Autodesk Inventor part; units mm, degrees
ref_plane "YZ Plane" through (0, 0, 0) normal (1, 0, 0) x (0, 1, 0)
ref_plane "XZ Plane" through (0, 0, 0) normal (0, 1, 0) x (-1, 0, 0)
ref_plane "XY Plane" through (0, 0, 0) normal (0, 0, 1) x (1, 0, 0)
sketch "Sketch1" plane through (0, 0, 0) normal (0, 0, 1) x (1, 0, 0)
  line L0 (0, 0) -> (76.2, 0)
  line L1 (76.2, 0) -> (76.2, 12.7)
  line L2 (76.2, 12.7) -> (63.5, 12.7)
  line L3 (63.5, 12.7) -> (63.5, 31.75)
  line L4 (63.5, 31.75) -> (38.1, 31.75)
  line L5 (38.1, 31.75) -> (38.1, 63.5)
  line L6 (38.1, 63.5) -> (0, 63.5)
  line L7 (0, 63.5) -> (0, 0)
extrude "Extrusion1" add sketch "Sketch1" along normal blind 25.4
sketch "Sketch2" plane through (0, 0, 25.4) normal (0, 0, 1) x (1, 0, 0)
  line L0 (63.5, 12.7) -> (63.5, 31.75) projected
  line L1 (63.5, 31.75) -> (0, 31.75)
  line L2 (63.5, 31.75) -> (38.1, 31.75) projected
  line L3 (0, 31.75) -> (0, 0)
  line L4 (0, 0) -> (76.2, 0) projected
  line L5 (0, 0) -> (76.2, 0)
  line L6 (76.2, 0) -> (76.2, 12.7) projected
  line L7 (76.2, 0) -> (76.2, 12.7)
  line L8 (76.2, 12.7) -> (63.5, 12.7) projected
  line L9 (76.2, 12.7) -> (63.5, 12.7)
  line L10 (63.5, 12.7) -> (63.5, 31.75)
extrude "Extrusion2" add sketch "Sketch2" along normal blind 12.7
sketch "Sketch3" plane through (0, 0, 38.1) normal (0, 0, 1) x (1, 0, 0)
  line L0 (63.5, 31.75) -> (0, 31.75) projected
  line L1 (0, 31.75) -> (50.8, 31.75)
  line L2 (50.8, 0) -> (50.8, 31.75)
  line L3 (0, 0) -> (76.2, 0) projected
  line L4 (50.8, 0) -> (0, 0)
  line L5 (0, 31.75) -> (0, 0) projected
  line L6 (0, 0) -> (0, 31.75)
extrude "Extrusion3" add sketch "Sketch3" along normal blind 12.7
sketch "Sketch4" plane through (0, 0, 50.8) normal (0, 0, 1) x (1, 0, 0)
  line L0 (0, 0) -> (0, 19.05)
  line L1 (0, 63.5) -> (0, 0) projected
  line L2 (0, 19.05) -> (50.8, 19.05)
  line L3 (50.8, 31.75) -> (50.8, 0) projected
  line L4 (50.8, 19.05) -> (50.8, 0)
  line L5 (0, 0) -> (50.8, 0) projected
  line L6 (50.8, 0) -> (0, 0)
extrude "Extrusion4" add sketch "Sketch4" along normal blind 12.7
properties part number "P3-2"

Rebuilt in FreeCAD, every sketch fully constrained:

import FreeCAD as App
import Part
import Sketcher
Q = App.Units.Quantity

doc = App.newDocument("Part")
body = doc.addObject("PartDesign::Body", "Body")

sketch1 = body.newObject("Sketcher::SketchObject", "Sketch")
sketch1.AttachmentSupport = (doc.getObject("XY_Plane"), [""])
sketch1.MapMode = "FlatFace"
sketch1.addGeometry([
    Part.LineSegment(App.Vector(0, 64, 0), App.Vector(0, 0, 0)),
    Part.LineSegment(App.Vector(0, 0, 0), App.Vector(76, 0, 0)),
    Part.LineSegment(App.Vector(76, 0, 0), App.Vector(76, 13, 0)),
    Part.LineSegment(App.Vector(76, 13, 0), App.Vector(64, 13, 0)),
    Part.LineSegment(App.Vector(64, 13, 0), App.Vector(64, 32, 0)),
    Part.LineSegment(App.Vector(64, 32, 0), App.Vector(38, 32, 0)),
    Part.LineSegment(App.Vector(38, 32, 0), App.Vector(38, 64, 0)),
    Part.LineSegment(App.Vector(38, 64, 0), App.Vector(0, 64, 0)),
], False)
sketch1.addConstraint([
    Sketcher.Constraint("Coincident", 0, 2, 1, 1),
    Sketcher.Constraint("Coincident", 1, 2, 2, 1),
    Sketcher.Constraint("Coincident", 2, 2, 3, 1),
    Sketcher.Constraint("Coincident", 3, 2, 4, 1),
    Sketcher.Constraint("Coincident", 4, 2, 5, 1),
    Sketcher.Constraint("Coincident", 5, 2, 6, 1),
    Sketcher.Constraint("Coincident", 6, 2, 7, 1),
    Sketcher.Constraint("Coincident", 7, 2, 0, 1),
    Sketcher.Constraint("Vertical", 0),
    Sketcher.Constraint("Horizontal", 1),
    Sketcher.Constraint("Vertical", 2),
    Sketcher.Constraint("Horizontal", 3),
    Sketcher.Constraint("Vertical", 4),
    Sketcher.Constraint("Horizontal", 5),
    Sketcher.Constraint("Vertical", 6),
    Sketcher.Constraint("Horizontal", 7),
    Sketcher.Constraint("Coincident", 0, 2, -1, 1),
    Sketcher.Constraint("Equal", 3, 2),
    Sketcher.Constraint("DistanceX", 1, 1, 1, 2, Q("3 in")),
    Sketcher.Constraint("DistanceX", 5, 2, 5, 1, Q("1 in")),
    Sketcher.Constraint("DistanceX", 3, 2, 3, 1, Q("0.5 in")),
    Sketcher.Constraint("DistanceY", 0, 2, 0, 1, Q("2.5 in")),
    Sketcher.Constraint("DistanceY", 4, 1, 4, 2, Q("0.75 in")),
])
pad1 = body.newObject("PartDesign::Pad", "Pad")
pad1.Profile = sketch1
pad1.Length = Q("1 in")

sketch2 = body.newObject("Sketcher::SketchObject", "Sketch001")
sketch2.AttachmentSupport = (doc.getObject("XY_Plane"), [""])
sketch2.MapMode = "FlatFace"
sketch2.AttachmentOffset = App.Placement(App.Vector(0, 0, 1 * 25.4), App.Rotation())
sketch2.addGeometry([
    Part.LineSegment(App.Vector(76, 13, 0), App.Vector(64, 13, 0)),
    Part.LineSegment(App.Vector(64, 13, 0), App.Vector(64, 32, 0)),
    Part.LineSegment(App.Vector(64, 32, 0), App.Vector(0, 32, 0)),
    Part.LineSegment(App.Vector(0, 32, 0), App.Vector(0, 0, 0)),
    Part.LineSegment(App.Vector(0, 0, 0), App.Vector(76, 0, 0)),
    Part.LineSegment(App.Vector(76, 0, 0), App.Vector(76, 13, 0)),
], False)
sketch2.addConstraint([
    Sketcher.Constraint("Coincident", 0, 2, 1, 1),
    Sketcher.Constraint("Coincident", 1, 2, 2, 1),
    Sketcher.Constraint("Coincident", 2, 2, 3, 1),
    Sketcher.Constraint("Coincident", 3, 2, 4, 1),
    Sketcher.Constraint("Coincident", 4, 2, 5, 1),
    Sketcher.Constraint("Coincident", 5, 2, 0, 1),
    Sketcher.Constraint("Horizontal", 0),
    Sketcher.Constraint("Vertical", 1),
    Sketcher.Constraint("Horizontal", 2),
    Sketcher.Constraint("Vertical", 3),
    Sketcher.Constraint("Horizontal", 4),
    Sketcher.Constraint("Vertical", 5),
    Sketcher.Constraint("Coincident", 3, 2, -1, 1),
    Sketcher.Constraint("Equal", 0, 5),
    Sketcher.Constraint("DistanceX", 4, 1, 4, 2, Q("3 in")),
    Sketcher.Constraint("DistanceX", 0, 2, 0, 1, Q("0.5 in")),
    Sketcher.Constraint("DistanceY", 1, 1, 1, 2, Q("0.75 in")),
])
pad2 = body.newObject("PartDesign::Pad", "Pad001")
pad2.Profile = sketch2
pad2.Length = Q("0.5 in")

sketch3 = body.newObject("Sketcher::SketchObject", "Sketch002")
sketch3.AttachmentSupport = (doc.getObject("XY_Plane"), [""])
sketch3.MapMode = "FlatFace"
sketch3.AttachmentOffset = App.Placement(App.Vector(0, 0, 1.5 * 25.4), App.Rotation())
sketch3.addGeometry([
    Part.LineSegment(App.Vector(51, 0, 0), App.Vector(51, 32, 0)),
    Part.LineSegment(App.Vector(51, 32, 0), App.Vector(0, 32, 0)),
    Part.LineSegment(App.Vector(0, 32, 0), App.Vector(0, 0, 0)),
    Part.LineSegment(App.Vector(0, 0, 0), App.Vector(51, 0, 0)),
], False)
sketch3.addConstraint([
    Sketcher.Constraint("Coincident", 0, 2, 1, 1),
    Sketcher.Constraint("Coincident", 1, 2, 2, 1),
    Sketcher.Constraint("Coincident", 2, 2, 3, 1),
    Sketcher.Constraint("Coincident", 3, 2, 0, 1),
    Sketcher.Constraint("Vertical", 0),
    Sketcher.Constraint("Horizontal", 1),
    Sketcher.Constraint("Vertical", 2),
    Sketcher.Constraint("Horizontal", 3),
    Sketcher.Constraint("Coincident", 2, 2, -1, 1),
    Sketcher.Constraint("DistanceX", 1, 2, 1, 1, Q("2 in")),
    Sketcher.Constraint("DistanceY", 0, 1, 0, 2, Q("1.25 in")),
])
pad3 = body.newObject("PartDesign::Pad", "Pad002")
pad3.Profile = sketch3
pad3.Length = Q("0.5 in")

sketch4 = body.newObject("Sketcher::SketchObject", "Sketch003")
sketch4.AttachmentSupport = (doc.getObject("XY_Plane"), [""])
sketch4.MapMode = "FlatFace"
sketch4.AttachmentOffset = App.Placement(App.Vector(0, 0, 2 * 25.4), App.Rotation())
sketch4.addGeometry([
    Part.LineSegment(App.Vector(0, 19, 0), App.Vector(0, 0, 0)),
    Part.LineSegment(App.Vector(0, 0, 0), App.Vector(51, 0, 0)),
    Part.LineSegment(App.Vector(51, 0, 0), App.Vector(51, 19, 0)),
    Part.LineSegment(App.Vector(51, 19, 0), App.Vector(0, 19, 0)),
], False)
sketch4.addConstraint([
    Sketcher.Constraint("Coincident", 0, 2, 1, 1),
    Sketcher.Constraint("Coincident", 1, 2, 2, 1),
    Sketcher.Constraint("Coincident", 2, 2, 3, 1),
    Sketcher.Constraint("Coincident", 3, 2, 0, 1),
    Sketcher.Constraint("Vertical", 0),
    Sketcher.Constraint("Horizontal", 1),
    Sketcher.Constraint("Vertical", 2),
    Sketcher.Constraint("Horizontal", 3),
    Sketcher.Constraint("Coincident", 0, 2, -1, 1),
    Sketcher.Constraint("DistanceX", 1, 1, 1, 2, Q("2 in")),
    Sketcher.Constraint("DistanceY", 0, 2, 0, 1, Q("0.75 in")),
])
pad4 = body.newObject("PartDesign::Pad", "Pad003")
pad4.Profile = sketch4
pad4.Length = Q("0.5 in")

doc.recompute()
